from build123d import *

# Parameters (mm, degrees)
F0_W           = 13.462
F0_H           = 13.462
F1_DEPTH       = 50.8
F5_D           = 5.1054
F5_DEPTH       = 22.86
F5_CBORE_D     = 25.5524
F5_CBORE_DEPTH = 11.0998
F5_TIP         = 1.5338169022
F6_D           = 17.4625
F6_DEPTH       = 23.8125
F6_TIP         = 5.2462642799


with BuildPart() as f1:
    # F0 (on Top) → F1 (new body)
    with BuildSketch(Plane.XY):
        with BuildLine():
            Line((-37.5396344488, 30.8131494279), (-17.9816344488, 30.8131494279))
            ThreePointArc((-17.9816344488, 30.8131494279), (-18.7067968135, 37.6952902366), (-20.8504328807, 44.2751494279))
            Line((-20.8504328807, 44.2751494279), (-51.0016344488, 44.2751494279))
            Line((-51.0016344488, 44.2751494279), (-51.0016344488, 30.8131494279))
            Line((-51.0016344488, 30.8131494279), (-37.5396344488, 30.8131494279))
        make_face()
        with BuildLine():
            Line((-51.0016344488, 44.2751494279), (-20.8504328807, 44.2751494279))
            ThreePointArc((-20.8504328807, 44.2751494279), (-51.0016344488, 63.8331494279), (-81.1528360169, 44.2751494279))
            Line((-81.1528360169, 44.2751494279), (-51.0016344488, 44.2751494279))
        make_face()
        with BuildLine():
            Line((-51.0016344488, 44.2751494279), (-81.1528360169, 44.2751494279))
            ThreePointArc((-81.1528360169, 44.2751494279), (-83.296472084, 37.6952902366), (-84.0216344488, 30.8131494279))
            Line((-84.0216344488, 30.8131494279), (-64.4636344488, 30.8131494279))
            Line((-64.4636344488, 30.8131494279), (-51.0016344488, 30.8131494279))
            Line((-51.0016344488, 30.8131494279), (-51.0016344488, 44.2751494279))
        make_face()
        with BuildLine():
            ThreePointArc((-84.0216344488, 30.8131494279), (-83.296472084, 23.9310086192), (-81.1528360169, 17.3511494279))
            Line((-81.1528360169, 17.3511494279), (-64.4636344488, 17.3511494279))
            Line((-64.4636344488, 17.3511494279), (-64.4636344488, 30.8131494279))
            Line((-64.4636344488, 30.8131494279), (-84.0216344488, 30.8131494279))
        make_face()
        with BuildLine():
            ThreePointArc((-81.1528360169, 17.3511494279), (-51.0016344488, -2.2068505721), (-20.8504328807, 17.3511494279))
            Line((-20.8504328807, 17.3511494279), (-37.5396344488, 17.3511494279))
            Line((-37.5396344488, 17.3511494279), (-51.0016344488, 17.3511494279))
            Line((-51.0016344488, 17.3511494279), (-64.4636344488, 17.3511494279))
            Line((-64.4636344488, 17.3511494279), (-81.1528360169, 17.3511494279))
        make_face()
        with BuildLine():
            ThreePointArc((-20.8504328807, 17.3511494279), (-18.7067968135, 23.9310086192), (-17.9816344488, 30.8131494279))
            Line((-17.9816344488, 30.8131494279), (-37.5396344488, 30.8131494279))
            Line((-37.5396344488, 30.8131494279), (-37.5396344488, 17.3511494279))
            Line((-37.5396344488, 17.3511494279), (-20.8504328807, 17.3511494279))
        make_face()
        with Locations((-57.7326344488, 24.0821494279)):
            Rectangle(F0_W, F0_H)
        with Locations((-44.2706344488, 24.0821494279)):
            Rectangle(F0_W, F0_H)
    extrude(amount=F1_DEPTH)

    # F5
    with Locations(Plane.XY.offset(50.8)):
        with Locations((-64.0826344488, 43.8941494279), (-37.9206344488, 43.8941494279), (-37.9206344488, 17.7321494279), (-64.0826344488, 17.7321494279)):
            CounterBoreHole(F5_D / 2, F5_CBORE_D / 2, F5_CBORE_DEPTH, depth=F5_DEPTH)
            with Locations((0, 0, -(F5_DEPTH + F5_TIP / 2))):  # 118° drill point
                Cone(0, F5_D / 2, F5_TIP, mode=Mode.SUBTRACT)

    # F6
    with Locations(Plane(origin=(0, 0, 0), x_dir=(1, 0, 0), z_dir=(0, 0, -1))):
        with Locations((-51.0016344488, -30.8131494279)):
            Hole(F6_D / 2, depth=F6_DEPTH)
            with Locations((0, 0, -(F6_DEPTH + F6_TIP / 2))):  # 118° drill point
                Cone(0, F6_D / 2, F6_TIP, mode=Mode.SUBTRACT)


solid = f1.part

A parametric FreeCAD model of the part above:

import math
import FreeCAD as App
import Part
import Sketcher
from FreeCAD import Vector
Q = App.Units.Quantity

doc = App.newDocument("Part")
body = doc.addObject("PartDesign::Body", "Body")

# Sketch on XY plane
sketch1 = body.newObject("Sketcher::SketchObject", "Sketch")
sketch1.AttachmentSupport = (doc.getObject("XY_Plane"), [""])
sketch1.MapMode = "FlatFace"
sketch1.addGeometry([
    Part.ArcOfCircle(Part.Circle(Vector(-51, 31, 0), Vector(0, 0, 1), 33), math.radians(0), math.radians(24)),  # 0
    Part.ArcOfCircle(Part.Circle(Vector(-51, 31, 0), Vector(0, 0, 1), 33), math.radians(24), math.radians(156)),  # 1
    Part.ArcOfCircle(Part.Circle(Vector(-51, 31, 0), Vector(0, 0, 1), 33), math.radians(156), math.radians(180)),  # 2
    Part.ArcOfCircle(Part.Circle(Vector(-51, 31, 0), Vector(0, 0, 1), 33), math.radians(-180), math.radians(-156)),  # 3
    Part.ArcOfCircle(Part.Circle(Vector(-51, 31, 0), Vector(0, 0, 1), 33), math.radians(-156), math.radians(-24)),  # 4
    Part.ArcOfCircle(Part.Circle(Vector(-51, 31, 0), Vector(0, 0, 1), 33), math.radians(-24), math.radians(0)),  # 5
], False)
sketch1.addConstraint([
    Sketcher.Constraint("Tangent", 0, 2, 1, 1),
    Sketcher.Constraint("Tangent", 1, 2, 2, 1),
    Sketcher.Constraint("Tangent", 2, 2, 3, 1),
    Sketcher.Constraint("Tangent", 3, 2, 4, 1),
    Sketcher.Constraint("Tangent", 4, 2, 5, 1),
    Sketcher.Constraint("Tangent", 5, 2, 0, 1),
    Sketcher.Constraint("Coincident", 2, 3, 0, 3),
    Sketcher.Constraint("Equal", 2, 3),
    Sketcher.Constraint("Horizontal", 0, 2, 1, 2),
    Sketcher.Constraint("Horizontal", 5, 3, 2, 2),
    Sketcher.Constraint("Horizontal", 3, 2, 4, 2),
    Sketcher.Constraint("Horizontal", 2, 2, 5, 2),
    Sketcher.Constraint("Vertical", 1, 2, 3, 2),
    Sketcher.Constraint("Radius", 0, Q("1.3 in")),
    Sketcher.Constraint("DistanceY", 3, 3, 0, 2, Q("0.53 in")),
    Sketcher.Constraint("DistanceY", -1, 1, 0, 3, Q("30.813149 mm")),
    Sketcher.Constraint("DistanceX", 0, 3, -1, 1, Q("51.001634 mm")),
])
pad1 = body.newObject("PartDesign::Pad", "Pad")
pad1.Profile = sketch1
pad1.Length = Q("2 in")

# Sketch on XY plane
sketch2 = body.newObject("Sketcher::SketchObject", "Sketch001")
sketch2.AttachmentSupport = (doc.getObject("XY_Plane"), [""])
sketch2.MapMode = "FlatFace"
sketch2.AttachmentOffset = App.Placement(Vector(0, 0, 2 * 25.4), App.Rotation())
sketch2.addGeometry([
    Part.Circle(Vector(-64.1, 43.9, 0), Vector(0, 0, 1), 2.6),
    Part.Circle(Vector(-37.9, 43.9, 0), Vector(0, 0, 1), 2.6),
    Part.Circle(Vector(-37.9, 17.7, 0), Vector(0, 0, 1), 2.6),
    Part.Circle(Vector(-64.1, 17.7, 0), Vector(0, 0, 1), 2.6),
], False)
sketch2.addConstraint([
    Sketcher.Constraint("Equal", 0, 1),
    Sketcher.Constraint("Equal", 1, 2),
    Sketcher.Constraint("Equal", 2, 3),
    Sketcher.Constraint("Horizontal", 0, 3, 1, 3),
    Sketcher.Constraint("Horizontal", 2, 3, 3, 3),
    Sketcher.Constraint("Vertical", 1, 3, 2, 3),
    Sketcher.Constraint("Vertical", 0, 3, 3, 3),
    Sketcher.Constraint("Diameter", 0, Q("0.201 in")),
    Sketcher.Constraint("DistanceX", 0, 3, 1, 3, Q("1.03 in")),
    Sketcher.Constraint("DistanceY", 2, 3, 1, 3, Q("1.03 in")),
    Sketcher.Constraint("DistanceY", -1, 1, 0, 3, Q("43.894149 mm")),
    Sketcher.Constraint("DistanceX", 0, 3, -1, 1, Q("64.082634 mm")),
])
doc.recompute()
hole = body.newObject("PartDesign::Hole", "Hole")
hole.Profile = sketch2
hole.ThreadType = "None"
hole.Diameter = Q("0.201 in")
hole.DepthType = "Dimension"
hole.Depth = Q("0.9 in")
hole.DrillPoint = "Angled"
hole.DrillPointAngle = 118
hole.HoleCutType = "Counterbore"
hole.HoleCutDiameter = Q("1.006 in")
hole.HoleCutDepth = Q("0.437 in")

# Sketch on XY plane
sketch3 = body.newObject("Sketcher::SketchObject", "Sketch002")
sketch3.AttachmentSupport = (doc.getObject("XY_Plane"), [""])
sketch3.MapMode = "FlatFace"
sketch3.addGeometry(Part.Circle(Vector(-51, 31, 0), Vector(0, 0, 1), 9), False)
sketch3.addConstraint([
    Sketcher.Constraint("Diameter", 0, Q("0.6875 in")),
    Sketcher.Constraint("DistanceY", -1, 1, 0, 3, Q("30.813149 mm")),
    Sketcher.Constraint("DistanceX", 0, 3, -1, 1, Q("51.001634 mm")),
])
doc.recompute()
hole2 = body.newObject("PartDesign::Hole", "Hole001")
hole2.Profile = sketch3
hole2.ThreadType = "None"
hole2.Diameter = Q("0.6875 in")
hole2.DepthType = "Dimension"
hole2.Depth = Q("0.9375 in")
hole2.DrillPoint = "Angled"
hole2.DrillPointAngle = 118
hole2.Reversed = True

doc.recompute()
